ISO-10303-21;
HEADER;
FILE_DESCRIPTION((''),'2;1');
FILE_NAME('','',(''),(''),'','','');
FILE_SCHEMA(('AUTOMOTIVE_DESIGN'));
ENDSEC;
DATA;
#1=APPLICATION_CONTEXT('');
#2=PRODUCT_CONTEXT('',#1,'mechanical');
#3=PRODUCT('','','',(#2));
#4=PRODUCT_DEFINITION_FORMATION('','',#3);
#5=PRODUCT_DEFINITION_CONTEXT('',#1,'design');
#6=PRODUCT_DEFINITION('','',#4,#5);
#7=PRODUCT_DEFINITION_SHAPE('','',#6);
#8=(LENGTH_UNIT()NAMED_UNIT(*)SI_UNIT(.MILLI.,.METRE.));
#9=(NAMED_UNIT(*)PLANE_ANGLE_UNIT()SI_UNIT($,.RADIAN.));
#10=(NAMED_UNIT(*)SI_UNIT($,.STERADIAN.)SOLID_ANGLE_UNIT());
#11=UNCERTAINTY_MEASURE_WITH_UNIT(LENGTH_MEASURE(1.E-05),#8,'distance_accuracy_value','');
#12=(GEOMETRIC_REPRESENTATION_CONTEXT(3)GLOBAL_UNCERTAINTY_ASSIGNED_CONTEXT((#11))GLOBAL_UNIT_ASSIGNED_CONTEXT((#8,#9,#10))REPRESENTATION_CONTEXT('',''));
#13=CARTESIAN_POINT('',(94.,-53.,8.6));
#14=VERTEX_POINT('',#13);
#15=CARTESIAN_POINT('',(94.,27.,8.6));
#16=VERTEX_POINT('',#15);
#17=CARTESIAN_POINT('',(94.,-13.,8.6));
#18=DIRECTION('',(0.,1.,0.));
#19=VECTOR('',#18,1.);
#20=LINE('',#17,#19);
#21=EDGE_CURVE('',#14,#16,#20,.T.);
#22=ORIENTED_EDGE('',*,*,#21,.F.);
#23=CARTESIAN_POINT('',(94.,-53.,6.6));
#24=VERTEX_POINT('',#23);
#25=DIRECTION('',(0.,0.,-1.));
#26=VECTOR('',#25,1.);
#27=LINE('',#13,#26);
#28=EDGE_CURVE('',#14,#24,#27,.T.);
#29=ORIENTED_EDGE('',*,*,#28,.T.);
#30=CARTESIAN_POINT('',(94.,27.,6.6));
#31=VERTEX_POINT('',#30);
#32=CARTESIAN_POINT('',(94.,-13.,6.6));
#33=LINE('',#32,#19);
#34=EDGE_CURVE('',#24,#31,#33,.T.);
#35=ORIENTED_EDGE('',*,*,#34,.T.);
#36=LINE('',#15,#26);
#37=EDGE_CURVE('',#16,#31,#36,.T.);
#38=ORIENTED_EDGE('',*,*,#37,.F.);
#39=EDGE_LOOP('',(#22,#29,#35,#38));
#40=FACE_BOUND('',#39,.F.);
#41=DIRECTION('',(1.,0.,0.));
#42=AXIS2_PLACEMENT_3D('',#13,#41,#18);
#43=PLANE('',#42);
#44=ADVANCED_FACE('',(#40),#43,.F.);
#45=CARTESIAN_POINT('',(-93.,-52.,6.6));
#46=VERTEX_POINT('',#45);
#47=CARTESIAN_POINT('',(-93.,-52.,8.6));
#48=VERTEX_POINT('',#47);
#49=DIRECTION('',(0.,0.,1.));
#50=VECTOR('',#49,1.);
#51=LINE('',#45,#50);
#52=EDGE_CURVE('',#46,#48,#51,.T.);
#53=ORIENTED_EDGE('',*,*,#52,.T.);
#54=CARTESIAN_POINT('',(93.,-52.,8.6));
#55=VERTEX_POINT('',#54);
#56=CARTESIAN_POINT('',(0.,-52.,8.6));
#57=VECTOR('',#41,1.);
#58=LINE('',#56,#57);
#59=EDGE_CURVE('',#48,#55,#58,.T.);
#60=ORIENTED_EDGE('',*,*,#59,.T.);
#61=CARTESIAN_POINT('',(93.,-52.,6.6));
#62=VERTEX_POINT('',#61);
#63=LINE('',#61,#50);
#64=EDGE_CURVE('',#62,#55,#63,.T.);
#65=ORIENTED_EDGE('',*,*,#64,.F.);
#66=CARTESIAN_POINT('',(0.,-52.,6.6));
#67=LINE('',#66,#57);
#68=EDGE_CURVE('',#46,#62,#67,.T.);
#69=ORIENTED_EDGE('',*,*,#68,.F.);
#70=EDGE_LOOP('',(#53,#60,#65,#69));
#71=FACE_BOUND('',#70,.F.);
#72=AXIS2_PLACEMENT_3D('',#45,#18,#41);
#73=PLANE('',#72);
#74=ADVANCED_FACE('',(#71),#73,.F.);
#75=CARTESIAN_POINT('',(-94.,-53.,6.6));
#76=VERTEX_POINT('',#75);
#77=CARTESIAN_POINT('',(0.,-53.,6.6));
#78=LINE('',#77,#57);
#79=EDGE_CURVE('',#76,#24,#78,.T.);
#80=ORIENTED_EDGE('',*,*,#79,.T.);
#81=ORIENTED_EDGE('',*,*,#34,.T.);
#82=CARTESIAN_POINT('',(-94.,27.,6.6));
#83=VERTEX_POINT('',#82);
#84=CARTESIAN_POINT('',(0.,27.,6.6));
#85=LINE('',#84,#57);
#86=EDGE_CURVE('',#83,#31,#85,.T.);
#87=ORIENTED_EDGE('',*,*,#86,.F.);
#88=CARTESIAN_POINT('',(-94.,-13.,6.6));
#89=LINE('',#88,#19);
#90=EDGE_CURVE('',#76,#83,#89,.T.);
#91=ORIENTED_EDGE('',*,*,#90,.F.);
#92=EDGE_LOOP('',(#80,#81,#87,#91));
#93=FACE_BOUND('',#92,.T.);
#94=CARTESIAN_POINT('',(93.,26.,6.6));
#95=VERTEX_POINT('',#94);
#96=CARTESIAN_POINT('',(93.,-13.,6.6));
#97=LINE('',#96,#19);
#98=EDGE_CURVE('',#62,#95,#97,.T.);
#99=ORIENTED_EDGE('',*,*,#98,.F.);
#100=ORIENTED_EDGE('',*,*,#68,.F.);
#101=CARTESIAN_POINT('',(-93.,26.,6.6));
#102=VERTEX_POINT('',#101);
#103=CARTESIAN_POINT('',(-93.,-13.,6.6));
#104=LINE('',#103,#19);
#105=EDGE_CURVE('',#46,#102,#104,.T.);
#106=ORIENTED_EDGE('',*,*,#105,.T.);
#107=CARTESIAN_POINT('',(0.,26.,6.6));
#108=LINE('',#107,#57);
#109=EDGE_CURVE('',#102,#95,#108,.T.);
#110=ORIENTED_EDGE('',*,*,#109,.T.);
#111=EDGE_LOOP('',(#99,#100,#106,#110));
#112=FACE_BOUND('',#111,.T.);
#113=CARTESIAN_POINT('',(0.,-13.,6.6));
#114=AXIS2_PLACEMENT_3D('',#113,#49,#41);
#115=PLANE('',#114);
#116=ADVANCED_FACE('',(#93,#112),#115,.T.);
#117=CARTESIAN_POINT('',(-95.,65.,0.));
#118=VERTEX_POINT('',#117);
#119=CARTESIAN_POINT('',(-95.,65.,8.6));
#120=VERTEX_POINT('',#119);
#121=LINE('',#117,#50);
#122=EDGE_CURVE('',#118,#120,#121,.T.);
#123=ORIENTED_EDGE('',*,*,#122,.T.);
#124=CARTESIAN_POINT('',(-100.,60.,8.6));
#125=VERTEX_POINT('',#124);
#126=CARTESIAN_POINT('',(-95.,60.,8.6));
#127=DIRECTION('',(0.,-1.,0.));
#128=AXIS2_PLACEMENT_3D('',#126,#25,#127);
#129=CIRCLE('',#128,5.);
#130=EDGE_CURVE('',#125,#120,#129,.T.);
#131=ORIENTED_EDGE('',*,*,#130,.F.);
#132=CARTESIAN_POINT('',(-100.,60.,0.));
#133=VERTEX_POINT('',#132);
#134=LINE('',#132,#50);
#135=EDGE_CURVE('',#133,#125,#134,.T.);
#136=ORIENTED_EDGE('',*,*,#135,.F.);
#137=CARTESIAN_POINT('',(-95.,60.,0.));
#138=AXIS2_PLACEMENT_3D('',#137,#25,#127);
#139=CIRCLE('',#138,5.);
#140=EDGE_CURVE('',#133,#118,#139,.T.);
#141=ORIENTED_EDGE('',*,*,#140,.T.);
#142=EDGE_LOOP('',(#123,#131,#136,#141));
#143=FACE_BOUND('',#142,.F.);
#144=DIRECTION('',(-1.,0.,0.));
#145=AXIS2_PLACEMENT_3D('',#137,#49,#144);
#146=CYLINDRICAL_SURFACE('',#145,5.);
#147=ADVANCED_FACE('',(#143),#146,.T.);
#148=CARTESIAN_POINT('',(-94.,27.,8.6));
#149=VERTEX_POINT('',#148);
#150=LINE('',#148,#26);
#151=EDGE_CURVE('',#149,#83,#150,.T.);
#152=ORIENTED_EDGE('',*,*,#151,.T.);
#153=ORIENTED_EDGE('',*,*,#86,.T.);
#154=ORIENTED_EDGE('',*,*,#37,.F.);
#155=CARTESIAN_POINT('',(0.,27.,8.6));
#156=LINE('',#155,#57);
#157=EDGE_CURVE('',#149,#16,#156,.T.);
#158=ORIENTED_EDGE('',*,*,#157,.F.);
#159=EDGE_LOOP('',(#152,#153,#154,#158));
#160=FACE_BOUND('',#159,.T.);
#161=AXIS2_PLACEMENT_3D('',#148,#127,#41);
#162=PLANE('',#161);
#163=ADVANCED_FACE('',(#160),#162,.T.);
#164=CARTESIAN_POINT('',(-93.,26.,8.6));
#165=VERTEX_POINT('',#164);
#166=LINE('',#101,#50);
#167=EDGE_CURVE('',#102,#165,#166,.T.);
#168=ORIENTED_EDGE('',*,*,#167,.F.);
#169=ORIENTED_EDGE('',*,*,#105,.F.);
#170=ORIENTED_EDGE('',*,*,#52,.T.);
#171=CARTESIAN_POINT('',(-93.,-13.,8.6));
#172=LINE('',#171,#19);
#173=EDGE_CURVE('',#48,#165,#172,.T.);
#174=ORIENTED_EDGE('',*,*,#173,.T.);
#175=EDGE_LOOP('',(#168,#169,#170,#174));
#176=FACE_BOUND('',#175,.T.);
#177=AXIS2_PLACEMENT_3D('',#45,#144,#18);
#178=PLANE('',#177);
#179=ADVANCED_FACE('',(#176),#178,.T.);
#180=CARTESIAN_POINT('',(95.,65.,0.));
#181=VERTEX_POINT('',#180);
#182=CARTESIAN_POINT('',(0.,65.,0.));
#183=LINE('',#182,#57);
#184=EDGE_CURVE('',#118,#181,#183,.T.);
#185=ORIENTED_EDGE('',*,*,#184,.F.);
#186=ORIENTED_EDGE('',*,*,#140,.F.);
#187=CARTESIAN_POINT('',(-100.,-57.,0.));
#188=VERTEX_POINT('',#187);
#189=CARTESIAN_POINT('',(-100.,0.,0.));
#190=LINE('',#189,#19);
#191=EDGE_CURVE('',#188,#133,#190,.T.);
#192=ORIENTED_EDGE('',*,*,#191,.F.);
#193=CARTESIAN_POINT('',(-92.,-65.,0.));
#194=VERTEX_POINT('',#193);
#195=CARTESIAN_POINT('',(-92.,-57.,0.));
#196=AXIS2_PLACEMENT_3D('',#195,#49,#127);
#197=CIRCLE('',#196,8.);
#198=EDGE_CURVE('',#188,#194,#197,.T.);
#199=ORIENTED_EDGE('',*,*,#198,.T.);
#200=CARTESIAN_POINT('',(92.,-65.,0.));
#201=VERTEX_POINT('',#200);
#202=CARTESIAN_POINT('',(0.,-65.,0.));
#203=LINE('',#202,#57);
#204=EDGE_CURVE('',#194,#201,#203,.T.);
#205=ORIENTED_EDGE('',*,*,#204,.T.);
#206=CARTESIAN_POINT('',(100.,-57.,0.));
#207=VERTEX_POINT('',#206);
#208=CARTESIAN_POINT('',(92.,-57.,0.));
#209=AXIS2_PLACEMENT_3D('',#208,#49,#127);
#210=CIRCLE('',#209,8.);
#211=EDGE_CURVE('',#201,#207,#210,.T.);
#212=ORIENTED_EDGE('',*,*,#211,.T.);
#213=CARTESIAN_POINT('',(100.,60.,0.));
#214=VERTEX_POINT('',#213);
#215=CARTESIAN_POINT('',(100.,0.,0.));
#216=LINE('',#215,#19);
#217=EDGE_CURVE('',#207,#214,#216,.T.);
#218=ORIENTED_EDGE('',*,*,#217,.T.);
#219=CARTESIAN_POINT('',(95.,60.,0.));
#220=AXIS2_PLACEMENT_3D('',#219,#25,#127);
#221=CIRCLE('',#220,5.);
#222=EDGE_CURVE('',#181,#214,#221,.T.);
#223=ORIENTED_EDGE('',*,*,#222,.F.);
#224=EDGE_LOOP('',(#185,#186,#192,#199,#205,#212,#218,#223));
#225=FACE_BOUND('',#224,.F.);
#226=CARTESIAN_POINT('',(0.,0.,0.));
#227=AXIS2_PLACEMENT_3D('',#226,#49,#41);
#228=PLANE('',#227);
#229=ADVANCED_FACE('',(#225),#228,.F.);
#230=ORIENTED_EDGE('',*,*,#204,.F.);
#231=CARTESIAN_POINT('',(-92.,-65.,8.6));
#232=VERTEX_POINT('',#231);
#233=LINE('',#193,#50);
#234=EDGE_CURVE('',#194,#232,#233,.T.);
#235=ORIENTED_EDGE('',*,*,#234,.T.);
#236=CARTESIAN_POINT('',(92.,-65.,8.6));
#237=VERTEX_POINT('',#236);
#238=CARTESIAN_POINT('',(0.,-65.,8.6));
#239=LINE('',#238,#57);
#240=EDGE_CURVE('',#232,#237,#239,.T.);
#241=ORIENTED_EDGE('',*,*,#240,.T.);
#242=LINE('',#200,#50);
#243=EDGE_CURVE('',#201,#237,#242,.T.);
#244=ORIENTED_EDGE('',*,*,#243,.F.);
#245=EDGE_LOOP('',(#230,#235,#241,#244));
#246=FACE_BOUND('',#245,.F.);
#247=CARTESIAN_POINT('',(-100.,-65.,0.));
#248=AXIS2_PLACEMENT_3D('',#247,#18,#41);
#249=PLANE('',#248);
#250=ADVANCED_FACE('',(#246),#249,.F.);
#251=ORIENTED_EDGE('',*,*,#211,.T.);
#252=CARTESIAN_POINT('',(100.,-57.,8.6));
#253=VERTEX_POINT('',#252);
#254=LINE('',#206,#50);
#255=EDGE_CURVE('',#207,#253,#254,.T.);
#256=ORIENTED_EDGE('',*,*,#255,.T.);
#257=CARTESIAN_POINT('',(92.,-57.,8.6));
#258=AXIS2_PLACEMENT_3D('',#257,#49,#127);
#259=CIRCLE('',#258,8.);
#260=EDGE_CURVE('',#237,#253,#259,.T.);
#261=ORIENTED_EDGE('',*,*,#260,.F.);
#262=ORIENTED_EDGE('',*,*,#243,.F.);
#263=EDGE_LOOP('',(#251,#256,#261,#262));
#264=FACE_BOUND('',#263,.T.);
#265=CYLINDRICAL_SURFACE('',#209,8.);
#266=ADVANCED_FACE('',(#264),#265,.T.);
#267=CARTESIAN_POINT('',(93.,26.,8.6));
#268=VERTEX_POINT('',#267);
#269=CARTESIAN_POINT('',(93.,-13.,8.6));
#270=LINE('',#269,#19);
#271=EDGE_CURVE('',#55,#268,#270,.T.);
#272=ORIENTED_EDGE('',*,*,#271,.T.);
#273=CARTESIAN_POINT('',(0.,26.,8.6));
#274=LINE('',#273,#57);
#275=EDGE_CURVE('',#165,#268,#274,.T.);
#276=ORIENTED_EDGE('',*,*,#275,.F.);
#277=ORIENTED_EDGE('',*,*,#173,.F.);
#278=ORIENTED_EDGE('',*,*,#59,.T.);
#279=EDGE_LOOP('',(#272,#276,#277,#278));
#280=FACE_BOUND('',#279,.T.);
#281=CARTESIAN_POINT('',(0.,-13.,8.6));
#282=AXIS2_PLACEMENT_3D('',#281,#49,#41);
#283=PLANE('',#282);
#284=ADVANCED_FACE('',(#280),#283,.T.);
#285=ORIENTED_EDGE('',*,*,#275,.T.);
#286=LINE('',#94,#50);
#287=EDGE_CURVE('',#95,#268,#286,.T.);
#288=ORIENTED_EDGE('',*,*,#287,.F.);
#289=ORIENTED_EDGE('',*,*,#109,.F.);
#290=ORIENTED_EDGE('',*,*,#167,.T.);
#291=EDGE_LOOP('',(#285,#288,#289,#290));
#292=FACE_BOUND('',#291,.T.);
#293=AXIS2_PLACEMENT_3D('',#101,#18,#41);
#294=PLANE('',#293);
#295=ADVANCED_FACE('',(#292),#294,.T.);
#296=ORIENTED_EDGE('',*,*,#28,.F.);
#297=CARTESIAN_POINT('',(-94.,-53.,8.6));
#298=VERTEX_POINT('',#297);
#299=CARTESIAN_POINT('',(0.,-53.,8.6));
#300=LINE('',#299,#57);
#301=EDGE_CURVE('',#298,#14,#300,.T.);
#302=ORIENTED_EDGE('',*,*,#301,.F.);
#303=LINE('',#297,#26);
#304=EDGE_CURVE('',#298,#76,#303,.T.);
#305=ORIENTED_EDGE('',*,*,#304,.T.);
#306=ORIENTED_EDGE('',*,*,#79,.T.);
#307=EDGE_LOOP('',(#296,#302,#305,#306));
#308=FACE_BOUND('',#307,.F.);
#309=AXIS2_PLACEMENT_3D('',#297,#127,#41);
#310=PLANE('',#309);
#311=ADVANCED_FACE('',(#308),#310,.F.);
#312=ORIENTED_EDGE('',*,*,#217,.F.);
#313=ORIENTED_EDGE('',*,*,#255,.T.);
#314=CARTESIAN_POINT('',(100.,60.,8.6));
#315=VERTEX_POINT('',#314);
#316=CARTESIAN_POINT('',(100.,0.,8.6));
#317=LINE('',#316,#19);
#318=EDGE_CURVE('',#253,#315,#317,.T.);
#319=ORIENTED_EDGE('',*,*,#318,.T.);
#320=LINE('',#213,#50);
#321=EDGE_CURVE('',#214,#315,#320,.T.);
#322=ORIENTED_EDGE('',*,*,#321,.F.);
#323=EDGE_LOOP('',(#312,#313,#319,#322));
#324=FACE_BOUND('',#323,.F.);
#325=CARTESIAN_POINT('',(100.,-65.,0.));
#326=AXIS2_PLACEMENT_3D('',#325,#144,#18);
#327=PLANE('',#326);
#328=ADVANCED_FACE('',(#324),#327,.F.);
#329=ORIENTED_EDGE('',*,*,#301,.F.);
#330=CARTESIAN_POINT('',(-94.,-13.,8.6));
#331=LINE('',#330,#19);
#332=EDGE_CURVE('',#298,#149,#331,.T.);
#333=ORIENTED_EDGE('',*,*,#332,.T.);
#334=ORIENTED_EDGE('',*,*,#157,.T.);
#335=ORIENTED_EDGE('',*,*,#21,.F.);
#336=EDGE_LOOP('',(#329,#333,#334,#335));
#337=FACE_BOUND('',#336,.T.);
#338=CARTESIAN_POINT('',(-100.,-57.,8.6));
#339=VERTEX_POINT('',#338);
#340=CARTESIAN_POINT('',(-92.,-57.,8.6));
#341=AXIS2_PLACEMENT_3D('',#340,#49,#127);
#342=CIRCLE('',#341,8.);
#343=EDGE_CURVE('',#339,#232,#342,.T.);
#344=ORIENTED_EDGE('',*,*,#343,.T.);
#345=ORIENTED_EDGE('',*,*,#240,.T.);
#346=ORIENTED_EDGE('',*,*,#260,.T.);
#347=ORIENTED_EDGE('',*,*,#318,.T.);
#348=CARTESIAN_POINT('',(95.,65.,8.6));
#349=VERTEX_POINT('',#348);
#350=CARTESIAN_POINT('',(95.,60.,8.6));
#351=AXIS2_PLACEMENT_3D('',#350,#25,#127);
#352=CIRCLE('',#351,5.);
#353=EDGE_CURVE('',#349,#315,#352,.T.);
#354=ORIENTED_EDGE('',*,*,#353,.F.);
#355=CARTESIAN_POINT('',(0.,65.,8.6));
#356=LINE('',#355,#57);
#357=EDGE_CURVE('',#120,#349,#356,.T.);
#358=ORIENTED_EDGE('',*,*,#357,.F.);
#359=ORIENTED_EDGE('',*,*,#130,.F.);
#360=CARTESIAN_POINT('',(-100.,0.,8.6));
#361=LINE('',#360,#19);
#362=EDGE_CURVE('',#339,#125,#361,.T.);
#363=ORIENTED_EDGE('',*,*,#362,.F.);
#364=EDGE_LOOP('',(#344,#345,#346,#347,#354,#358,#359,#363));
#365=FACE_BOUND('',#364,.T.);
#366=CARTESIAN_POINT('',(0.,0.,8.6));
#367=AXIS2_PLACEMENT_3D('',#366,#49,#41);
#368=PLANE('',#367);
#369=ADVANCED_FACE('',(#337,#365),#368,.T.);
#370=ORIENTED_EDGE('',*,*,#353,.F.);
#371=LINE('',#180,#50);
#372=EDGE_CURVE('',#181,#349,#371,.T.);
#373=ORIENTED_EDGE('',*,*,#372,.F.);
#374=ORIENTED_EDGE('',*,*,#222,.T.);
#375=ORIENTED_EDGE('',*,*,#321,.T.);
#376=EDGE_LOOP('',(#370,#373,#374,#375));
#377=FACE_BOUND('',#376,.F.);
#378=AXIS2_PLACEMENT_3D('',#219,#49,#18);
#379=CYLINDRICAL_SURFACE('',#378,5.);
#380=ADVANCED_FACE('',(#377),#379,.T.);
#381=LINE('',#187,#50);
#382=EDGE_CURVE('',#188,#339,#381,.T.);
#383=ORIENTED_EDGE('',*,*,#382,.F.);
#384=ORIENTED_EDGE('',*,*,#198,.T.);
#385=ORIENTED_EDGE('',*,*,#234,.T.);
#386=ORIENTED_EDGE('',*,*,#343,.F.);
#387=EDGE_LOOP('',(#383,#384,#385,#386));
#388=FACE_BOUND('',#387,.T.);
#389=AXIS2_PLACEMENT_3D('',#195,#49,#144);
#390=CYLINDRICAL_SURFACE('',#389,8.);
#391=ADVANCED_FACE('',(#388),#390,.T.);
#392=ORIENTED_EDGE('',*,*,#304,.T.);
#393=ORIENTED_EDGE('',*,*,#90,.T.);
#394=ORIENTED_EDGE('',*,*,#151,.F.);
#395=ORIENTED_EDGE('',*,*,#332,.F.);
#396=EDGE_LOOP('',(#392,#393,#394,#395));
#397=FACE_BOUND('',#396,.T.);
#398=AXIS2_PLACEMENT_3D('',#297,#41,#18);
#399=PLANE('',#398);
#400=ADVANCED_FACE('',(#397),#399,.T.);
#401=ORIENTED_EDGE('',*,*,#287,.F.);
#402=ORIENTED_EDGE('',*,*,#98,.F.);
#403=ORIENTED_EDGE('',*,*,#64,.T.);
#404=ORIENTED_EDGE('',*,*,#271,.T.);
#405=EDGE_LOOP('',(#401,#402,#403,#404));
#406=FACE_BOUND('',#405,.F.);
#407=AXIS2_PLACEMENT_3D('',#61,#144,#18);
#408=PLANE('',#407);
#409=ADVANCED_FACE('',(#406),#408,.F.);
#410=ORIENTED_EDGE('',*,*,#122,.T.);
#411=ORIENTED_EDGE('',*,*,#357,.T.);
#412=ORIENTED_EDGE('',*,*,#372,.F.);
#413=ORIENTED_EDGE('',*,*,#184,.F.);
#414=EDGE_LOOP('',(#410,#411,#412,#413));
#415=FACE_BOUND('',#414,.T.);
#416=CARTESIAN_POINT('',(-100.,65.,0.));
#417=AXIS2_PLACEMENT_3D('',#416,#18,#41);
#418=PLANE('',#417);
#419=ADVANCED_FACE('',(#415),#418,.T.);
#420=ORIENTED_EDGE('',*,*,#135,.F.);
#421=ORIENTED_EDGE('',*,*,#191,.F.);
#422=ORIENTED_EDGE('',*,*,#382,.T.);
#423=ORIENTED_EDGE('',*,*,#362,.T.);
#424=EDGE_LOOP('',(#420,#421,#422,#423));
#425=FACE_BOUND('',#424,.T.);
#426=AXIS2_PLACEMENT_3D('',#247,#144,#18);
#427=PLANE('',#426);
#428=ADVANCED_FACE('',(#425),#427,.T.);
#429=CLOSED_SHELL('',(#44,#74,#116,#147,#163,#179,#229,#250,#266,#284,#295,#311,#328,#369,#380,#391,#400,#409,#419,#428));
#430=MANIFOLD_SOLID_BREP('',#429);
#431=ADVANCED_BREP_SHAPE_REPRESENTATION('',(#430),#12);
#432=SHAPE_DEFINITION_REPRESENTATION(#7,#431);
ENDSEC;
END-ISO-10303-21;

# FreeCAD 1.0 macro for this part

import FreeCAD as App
import Part
import Sketcher


def edges_at(feature, points):
    """Names of the edges that pass closest to the given points."""
    edges = feature.Shape.Edges
    near = lambda p: min(range(len(edges)), key=lambda i: edges[i].distToShape(Part.Vertex(*p))[0])
    return sorted({f"Edge{near(p) + 1}" for p in points})


def add_polygon(sketch, points):
    """Adds a closed chain of lines whose ends are joined by coincident constraints."""
    first, n = sketch.GeometryCount, len(points)
    for a, b in zip(points, points[1:] + points[:1]):
        sketch.addGeometry(Part.LineSegment(App.Vector(*a, 0), App.Vector(*b, 0)), False)
    for i in range(n):
        sketch.addConstraint(Sketcher.Constraint("Coincident", first + i, 2, first + (i + 1) % n, 1))

doc = App.newDocument("Part")
body = doc.addObject("PartDesign::Body", "Body")

# Sketch on XY plane
sketch1 = doc.addObject("Sketcher::SketchObject", "Sketch")
body.addObject(sketch1)
sketch1.AttachmentSupport = (doc.XY_Plane, [""])
sketch1.MapMode = "FlatFace"
add_polygon(sketch1, [(-100, 65), (-100, -65), (100, -65), (100, 65)])  # lines 0-3
sketch1.addConstraint([
    Sketcher.Constraint("Vertical", 0),
    Sketcher.Constraint("Horizontal", 1),
    Sketcher.Constraint("Vertical", 2),
    Sketcher.Constraint("Horizontal", 3),
    Sketcher.Constraint("Symmetric", 0, 2, 2, 2, -1, 1),
    Sketcher.Constraint("DistanceX", 1, 1, 1, 2, 200.0),
    Sketcher.Constraint("DistanceY", 0, 2, 0, 1, 130.0),
])
pad1 = doc.addObject("PartDesign::Pad", "Pad")
body.addObject(pad1)
pad1.Profile = sketch1
pad1.Length = 8.6
doc.recompute()

fillet = doc.addObject("PartDesign::Fillet", "Fillet")
body.addObject(fillet)
fillet.Base = (pad1, edges_at(pad1, [(-100, -65, 4.3), (100, -65, 4.3)]))
fillet.Radius = 8
doc.recompute()

fillet2 = doc.addObject("PartDesign::Fillet", "Fillet001")
body.addObject(fillet2)
fillet2.Base = (fillet, edges_at(fillet, [(100, 65, 4.3), (-100, 65, 4.3)]))
fillet2.Radius = 5

# Sketch on XY plane
sketch2 = doc.addObject("Sketcher::SketchObject", "Sketch001")
body.addObject(sketch2)
sketch2.AttachmentSupport = (doc.XY_Plane, [""])
sketch2.MapMode = "FlatFace"
sketch2.AttachmentOffset = App.Placement(App.Vector(0, 0, 8.6), App.Rotation())
add_polygon(sketch2, [(-94, 27), (-94, -53), (94, -53), (94, 27)])  # lines 0-3
sketch2.addConstraint([
    Sketcher.Constraint("Vertical", 0),
    Sketcher.Constraint("Horizontal", 1),
    Sketcher.Constraint("Vertical", 2),
    Sketcher.Constraint("Horizontal", 3),
    Sketcher.Constraint("DistanceX", 1, 1, 1, 2, 188.0),
    Sketcher.Constraint("DistanceY", 0, 2, 0, 1, 80.0),
    Sketcher.Constraint("DistanceX", 0, 2, -1, 1, 94.0),
    Sketcher.Constraint("DistanceY", 0, 2, -1, 1, 53.0),
])
pocket1 = doc.addObject("PartDesign::Pocket", "Pocket")
body.addObject(pocket1)
pocket1.Profile = sketch2
pocket1.Length = 2

# Sketch on XY plane
sketch3 = doc.addObject("Sketcher::SketchObject", "Sketch002")
body.addObject(sketch3)
sketch3.AttachmentSupport = (doc.XY_Plane, [""])
sketch3.MapMode = "FlatFace"
sketch3.AttachmentOffset = App.Placement(App.Vector(0, 0, 6.6), App.Rotation())
add_polygon(sketch3, [(-93, 26), (-93, -52), (93, -52), (93, 26)])  # lines 0-3
sketch3.addConstraint([
    Sketcher.Constraint("Vertical", 0),
    Sketcher.Constraint("Horizontal", 1),
    Sketcher.Constraint("Vertical", 2),
    Sketcher.Constraint("Horizontal", 3),
    Sketcher.Constraint("DistanceX", 1, 1, 1, 2, 186.0),
    Sketcher.Constraint("DistanceY", 0, 2, 0, 1, 78.0),
    Sketcher.Constraint("DistanceX", 0, 2, -1, 1, 93.0),
    Sketcher.Constraint("DistanceY", 0, 2, -1, 1, 52.0),
])
pad2 = doc.addObject("PartDesign::Pad", "Pad001")
body.addObject(pad2)
pad2.Profile = sketch3
pad2.Length = 2

doc.recompute()
